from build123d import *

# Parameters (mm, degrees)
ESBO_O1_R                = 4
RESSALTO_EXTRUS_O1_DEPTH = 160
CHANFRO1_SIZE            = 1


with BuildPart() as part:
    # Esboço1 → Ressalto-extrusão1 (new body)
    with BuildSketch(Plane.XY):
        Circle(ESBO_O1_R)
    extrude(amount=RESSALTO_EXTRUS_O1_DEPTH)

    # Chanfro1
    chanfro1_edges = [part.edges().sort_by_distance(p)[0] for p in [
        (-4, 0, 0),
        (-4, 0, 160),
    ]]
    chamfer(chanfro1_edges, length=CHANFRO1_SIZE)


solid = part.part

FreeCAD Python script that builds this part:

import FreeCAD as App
import Part
import Sketcher
from FreeCAD import Vector
Q = App.Units.Quantity


def edges_at(feature, points):
    """Names of the edges that pass closest to the given points."""
    edges = feature.Shape.Edges
    near = lambda p: min(range(len(edges)), key=lambda i: edges[i].distToShape(Part.Vertex(*p))[0])
    return sorted({f"Edge{near(p) + 1}" for p in points})

doc = App.newDocument("Part")
body = doc.addObject("PartDesign::Body", "Body")

# Sketch on XY plane
sketch1 = doc.addObject("Sketcher::SketchObject", "Sketch")
body.addObject(sketch1)
sketch1.AttachmentSupport = (doc.XY_Plane, [""])
sketch1.MapMode = "FlatFace"
sketch1.addGeometry(Part.Circle(Vector(0, 0, 0), Vector(0, 0, 1), 4), False)
sketch1.addConstraint(Sketcher.Constraint("Coincident", 0, 3, -1, 1))
sketch1.addConstraint(Sketcher.Constraint("Diameter", 0, Q("8 mm")))
pad1 = doc.addObject("PartDesign::Pad", "Pad")
body.addObject(pad1)
pad1.Profile = sketch1
pad1.Length = 160
doc.recompute()

chamfer = doc.addObject("PartDesign::Chamfer", "Chamfer")
body.addObject(chamfer)
chamfer.Base = (pad1, edges_at(pad1, [(-4, 0, 0), (-4, 0, 160)]))
chamfer.Size = 1

doc.recompute()
